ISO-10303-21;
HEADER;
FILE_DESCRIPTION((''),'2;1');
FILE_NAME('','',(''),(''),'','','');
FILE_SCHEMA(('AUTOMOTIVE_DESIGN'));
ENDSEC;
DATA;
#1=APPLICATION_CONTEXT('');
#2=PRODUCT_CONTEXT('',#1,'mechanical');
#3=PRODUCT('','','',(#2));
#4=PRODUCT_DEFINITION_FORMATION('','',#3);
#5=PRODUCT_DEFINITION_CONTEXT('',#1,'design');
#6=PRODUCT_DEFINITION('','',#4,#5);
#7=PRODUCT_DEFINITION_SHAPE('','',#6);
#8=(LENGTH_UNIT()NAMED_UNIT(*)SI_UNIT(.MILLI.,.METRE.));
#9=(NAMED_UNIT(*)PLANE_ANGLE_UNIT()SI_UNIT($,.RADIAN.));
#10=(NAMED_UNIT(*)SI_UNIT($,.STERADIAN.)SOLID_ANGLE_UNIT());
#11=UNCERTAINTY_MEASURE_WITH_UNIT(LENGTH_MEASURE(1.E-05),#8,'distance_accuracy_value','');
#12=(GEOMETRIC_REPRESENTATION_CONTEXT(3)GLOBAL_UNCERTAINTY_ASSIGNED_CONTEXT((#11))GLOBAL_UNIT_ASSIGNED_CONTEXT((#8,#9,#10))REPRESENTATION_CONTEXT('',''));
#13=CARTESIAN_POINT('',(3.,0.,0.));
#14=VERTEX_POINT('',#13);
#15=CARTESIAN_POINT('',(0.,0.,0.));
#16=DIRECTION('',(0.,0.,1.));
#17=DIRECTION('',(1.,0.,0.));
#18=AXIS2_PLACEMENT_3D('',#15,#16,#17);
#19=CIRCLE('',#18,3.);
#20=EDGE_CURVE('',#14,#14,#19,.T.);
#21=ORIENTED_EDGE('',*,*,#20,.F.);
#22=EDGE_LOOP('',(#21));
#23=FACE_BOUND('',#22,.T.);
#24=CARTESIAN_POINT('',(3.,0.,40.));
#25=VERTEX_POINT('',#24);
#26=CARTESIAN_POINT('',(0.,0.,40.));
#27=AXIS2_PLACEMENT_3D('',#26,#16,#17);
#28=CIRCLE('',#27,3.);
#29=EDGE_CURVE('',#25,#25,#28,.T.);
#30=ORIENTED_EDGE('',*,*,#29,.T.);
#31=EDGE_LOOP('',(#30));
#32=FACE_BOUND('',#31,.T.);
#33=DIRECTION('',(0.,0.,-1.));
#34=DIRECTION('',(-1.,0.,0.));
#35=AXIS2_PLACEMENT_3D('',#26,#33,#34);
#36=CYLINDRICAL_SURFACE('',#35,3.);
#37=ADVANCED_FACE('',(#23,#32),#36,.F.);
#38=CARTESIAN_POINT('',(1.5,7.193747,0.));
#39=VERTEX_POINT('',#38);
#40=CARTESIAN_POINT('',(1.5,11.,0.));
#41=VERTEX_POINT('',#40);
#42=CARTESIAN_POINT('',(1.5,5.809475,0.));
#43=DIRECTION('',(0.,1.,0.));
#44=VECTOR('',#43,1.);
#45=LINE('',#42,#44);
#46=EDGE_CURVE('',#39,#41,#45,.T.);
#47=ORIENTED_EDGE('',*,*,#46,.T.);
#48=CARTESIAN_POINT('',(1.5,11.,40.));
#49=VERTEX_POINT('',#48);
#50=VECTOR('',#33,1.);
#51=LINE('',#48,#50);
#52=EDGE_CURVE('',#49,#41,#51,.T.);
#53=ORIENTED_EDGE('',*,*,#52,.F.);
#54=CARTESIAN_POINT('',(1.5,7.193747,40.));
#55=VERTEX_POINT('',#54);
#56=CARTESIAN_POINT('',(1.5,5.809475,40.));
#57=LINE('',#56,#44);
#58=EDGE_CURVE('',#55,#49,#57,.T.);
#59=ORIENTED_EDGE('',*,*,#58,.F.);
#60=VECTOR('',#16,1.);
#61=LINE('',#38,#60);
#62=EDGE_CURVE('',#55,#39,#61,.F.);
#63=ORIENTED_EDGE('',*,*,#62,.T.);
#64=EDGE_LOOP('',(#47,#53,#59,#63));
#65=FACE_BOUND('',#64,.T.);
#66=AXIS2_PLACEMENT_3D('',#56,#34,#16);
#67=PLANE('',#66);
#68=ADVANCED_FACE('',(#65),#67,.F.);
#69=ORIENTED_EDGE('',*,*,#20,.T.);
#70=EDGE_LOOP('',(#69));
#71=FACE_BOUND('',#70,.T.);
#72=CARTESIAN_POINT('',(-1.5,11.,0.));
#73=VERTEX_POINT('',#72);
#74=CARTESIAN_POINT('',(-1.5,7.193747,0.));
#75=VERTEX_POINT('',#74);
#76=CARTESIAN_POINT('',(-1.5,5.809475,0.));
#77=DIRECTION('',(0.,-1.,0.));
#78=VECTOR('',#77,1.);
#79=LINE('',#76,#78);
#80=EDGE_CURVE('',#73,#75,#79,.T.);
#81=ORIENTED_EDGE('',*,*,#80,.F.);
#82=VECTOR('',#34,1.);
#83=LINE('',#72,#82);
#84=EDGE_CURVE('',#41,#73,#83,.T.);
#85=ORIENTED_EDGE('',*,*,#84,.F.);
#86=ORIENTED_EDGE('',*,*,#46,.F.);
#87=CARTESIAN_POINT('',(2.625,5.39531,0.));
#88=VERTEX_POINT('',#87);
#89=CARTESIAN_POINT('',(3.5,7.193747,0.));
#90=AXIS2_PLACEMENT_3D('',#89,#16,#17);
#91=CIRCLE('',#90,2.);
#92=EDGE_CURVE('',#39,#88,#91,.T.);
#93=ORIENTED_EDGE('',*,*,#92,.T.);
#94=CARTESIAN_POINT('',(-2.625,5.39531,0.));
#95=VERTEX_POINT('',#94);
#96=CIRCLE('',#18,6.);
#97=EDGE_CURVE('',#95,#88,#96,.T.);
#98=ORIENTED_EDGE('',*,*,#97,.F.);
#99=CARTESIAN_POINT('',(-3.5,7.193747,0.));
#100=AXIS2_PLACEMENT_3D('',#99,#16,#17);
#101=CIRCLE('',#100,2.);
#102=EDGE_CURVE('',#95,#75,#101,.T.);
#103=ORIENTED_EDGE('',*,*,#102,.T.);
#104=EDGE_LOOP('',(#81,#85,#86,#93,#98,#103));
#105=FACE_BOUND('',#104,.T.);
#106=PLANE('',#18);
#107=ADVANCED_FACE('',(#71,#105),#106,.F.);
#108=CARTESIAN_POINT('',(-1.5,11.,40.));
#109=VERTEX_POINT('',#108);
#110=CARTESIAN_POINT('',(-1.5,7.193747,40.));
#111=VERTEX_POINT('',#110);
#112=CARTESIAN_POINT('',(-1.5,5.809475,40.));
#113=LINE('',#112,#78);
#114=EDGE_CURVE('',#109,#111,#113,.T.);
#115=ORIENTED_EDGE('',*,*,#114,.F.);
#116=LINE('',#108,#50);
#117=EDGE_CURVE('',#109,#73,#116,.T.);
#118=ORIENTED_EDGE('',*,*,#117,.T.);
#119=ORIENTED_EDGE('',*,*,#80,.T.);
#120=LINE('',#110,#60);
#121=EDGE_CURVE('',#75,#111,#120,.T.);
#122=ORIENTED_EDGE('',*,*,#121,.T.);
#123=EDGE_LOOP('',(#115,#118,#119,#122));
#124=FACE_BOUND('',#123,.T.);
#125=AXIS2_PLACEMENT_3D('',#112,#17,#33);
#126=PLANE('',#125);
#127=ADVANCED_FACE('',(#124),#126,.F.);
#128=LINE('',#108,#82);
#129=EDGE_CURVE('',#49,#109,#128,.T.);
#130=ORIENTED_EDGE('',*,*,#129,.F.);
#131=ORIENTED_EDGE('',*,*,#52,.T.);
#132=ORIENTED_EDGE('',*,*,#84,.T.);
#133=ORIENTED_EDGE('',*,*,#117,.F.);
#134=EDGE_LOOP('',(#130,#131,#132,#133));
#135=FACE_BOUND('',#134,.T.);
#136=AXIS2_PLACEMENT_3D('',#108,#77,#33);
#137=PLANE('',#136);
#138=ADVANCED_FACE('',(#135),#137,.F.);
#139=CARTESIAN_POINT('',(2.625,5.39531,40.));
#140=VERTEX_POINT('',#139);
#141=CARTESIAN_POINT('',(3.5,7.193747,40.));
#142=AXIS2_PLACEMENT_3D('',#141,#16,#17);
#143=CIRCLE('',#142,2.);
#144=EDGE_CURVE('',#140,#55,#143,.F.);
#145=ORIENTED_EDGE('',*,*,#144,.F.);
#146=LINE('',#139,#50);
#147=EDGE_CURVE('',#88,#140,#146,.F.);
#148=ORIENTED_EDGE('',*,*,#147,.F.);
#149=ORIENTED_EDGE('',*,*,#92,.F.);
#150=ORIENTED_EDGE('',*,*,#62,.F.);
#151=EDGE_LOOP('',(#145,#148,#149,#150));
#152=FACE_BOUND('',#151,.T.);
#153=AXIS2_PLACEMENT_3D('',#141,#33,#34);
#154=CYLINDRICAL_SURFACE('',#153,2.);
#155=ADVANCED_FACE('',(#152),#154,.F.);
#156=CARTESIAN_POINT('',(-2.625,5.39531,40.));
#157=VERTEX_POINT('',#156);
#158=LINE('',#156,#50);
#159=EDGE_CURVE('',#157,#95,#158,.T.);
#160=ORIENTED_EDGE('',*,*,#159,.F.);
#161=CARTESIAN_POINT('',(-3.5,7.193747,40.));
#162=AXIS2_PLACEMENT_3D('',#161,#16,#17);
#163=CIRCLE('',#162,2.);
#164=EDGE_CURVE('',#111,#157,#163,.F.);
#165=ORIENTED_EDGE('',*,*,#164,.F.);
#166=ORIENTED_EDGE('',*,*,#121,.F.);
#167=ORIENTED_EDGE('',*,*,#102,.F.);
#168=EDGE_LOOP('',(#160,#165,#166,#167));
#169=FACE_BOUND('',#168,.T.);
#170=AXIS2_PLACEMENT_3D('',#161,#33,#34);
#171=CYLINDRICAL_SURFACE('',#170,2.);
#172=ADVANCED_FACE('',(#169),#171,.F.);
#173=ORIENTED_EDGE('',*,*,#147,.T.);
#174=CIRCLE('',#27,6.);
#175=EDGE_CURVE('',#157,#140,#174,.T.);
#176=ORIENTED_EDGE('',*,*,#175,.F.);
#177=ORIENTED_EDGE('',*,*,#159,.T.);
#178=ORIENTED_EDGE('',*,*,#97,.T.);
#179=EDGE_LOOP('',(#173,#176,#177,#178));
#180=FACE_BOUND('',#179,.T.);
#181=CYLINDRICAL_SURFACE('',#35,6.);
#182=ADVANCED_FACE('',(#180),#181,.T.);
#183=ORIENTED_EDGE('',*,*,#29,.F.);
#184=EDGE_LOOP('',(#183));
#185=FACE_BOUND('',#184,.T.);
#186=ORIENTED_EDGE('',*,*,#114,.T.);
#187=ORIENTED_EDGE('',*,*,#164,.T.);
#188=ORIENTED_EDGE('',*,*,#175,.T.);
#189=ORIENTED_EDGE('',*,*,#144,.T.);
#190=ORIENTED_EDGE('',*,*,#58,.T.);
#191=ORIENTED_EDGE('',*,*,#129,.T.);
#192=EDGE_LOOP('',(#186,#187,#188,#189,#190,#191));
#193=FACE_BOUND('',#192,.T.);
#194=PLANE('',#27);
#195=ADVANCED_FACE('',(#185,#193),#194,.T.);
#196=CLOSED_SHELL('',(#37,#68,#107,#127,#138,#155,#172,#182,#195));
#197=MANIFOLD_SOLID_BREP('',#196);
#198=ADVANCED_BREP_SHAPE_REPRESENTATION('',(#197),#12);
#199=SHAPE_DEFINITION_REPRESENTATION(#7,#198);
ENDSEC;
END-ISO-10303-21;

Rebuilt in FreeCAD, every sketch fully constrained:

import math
import FreeCAD as App
import Part
import Sketcher

V = App.Vector
Q = App.Units.Quantity


def edges_at(feature, points):
    """Names of the edges that pass closest to the given points."""
    edges = feature.Shape.Edges
    near = lambda p: min(range(len(edges)), key=lambda i: edges[i].distToShape(Part.Vertex(*p))[0])
    return sorted({f"Edge{near(p) + 1}" for p in points})

doc = App.newDocument("Part")
body = doc.addObject("PartDesign::Body", "Body")

# Sketch on XY plane
sketch1 = body.newObject("Sketcher::SketchObject", "Sketch")
sketch1.AttachmentSupport = (doc.getObject("XY_Plane"), [""])
sketch1.MapMode = "FlatFace"
sketch1.addGeometry([
    Part.LineSegment(V(-1.5, 11, 0), V(-1.5, 5.8, 0)),  # 0
    Part.ArcOfCircle(Part.Circle(V(0, 0, 0), V(0, 0, 1), 6), math.radians(104), math.radians(436)),  # 1
    Part.LineSegment(V(1.5, 5.8, 0), V(1.5, 11, 0)),  # 2
    Part.LineSegment(V(1.5, 11, 0), V(-1.5, 11, 0)),  # 3
    Part.Circle(V(0, 0, 0), V(0, 0, 1), 3),  # 4
], False)
sketch1.addConstraint([
    Sketcher.Constraint("Coincident", 0, 2, 1, 1),
    Sketcher.Constraint("Coincident", 1, 2, 2, 1),
    Sketcher.Constraint("Coincident", 2, 2, 3, 1),
    Sketcher.Constraint("Coincident", 3, 2, 0, 1),
    Sketcher.Constraint("Vertical", 0),
    Sketcher.Constraint("Vertical", 2),
    Sketcher.Constraint("Horizontal", 3),
    Sketcher.Constraint("Coincident", 1, 3, -1, 1),
    Sketcher.Constraint("Coincident", 4, 3, -1, 1),
    Sketcher.Constraint("Horizontal", 0, 2, 1, 2),
    Sketcher.Constraint("Diameter", 4, Q("6 mm")),
    Sketcher.Constraint("Radius", 1, Q("6 mm")),
    Sketcher.Constraint("DistanceX", 3, 2, 3, 1, Q("3 mm")),
    Sketcher.Constraint("DistanceY", -1, 1, 2, 2, Q("11 mm")),
])
pad1 = body.newObject("PartDesign::Pad", "Pad")
pad1.Profile = sketch1
pad1.Length = 40
doc.recompute()

fillet = body.newObject("PartDesign::Fillet", "Fillet")
fillet.Base = (pad1, edges_at(pad1, [(1.5, 5.809, 20), (-1.5, 5.809, 20)]))
fillet.Radius = 2

doc.recompute()
